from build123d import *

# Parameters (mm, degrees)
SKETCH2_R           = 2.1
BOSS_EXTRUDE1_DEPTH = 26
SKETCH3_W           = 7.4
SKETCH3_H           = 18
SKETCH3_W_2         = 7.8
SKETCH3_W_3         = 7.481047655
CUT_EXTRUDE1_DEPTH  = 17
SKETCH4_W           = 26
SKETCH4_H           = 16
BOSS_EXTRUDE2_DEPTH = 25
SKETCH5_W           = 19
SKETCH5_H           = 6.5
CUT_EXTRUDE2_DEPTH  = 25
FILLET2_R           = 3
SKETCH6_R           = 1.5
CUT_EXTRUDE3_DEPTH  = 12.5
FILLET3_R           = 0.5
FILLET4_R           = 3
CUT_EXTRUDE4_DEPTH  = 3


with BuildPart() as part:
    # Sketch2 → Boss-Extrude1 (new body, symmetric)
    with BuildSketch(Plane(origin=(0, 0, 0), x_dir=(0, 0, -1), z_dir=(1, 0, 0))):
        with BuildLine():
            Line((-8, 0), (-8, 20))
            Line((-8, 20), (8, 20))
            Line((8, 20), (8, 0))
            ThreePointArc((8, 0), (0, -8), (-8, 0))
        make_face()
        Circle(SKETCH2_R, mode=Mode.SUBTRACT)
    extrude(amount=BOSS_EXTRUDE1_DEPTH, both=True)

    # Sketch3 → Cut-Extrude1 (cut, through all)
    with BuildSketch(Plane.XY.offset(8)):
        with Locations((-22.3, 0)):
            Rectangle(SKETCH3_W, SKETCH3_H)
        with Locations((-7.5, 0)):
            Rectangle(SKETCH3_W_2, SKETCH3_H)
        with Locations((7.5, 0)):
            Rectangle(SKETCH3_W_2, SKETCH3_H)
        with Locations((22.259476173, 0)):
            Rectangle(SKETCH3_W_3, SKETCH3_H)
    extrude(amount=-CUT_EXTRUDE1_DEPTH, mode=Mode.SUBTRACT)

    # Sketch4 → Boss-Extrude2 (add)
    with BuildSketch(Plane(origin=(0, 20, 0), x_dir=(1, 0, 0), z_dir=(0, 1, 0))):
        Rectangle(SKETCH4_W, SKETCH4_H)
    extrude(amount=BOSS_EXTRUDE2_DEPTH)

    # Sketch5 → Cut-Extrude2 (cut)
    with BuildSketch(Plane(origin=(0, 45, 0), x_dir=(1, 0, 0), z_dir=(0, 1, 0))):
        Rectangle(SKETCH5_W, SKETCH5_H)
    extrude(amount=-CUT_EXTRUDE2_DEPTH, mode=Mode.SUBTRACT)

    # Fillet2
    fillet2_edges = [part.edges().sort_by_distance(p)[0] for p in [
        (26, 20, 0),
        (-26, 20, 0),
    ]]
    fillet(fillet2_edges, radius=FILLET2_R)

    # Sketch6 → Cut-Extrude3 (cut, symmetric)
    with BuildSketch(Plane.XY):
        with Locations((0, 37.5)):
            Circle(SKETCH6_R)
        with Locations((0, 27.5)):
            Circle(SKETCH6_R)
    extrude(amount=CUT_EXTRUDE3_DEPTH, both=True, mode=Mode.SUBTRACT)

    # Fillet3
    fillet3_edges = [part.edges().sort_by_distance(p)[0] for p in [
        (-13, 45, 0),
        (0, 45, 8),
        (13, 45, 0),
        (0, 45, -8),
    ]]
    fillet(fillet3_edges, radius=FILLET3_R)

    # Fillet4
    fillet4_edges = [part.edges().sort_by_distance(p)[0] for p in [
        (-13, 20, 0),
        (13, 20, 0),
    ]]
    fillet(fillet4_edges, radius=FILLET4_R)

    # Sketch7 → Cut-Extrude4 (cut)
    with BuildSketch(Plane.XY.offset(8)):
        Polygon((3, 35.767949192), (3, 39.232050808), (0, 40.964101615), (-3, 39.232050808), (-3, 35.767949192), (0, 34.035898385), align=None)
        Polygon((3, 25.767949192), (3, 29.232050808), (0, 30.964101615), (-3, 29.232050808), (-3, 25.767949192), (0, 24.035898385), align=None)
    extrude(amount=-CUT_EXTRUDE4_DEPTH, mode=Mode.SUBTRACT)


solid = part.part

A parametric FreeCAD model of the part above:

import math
import FreeCAD as App
import Part
import Sketcher
from FreeCAD import Vector
Q = App.Units.Quantity


def edges_at(feature, points):
    """Names of the edges that pass closest to the given points."""
    edges = feature.Shape.Edges
    near = lambda p: min(range(len(edges)), key=lambda i: edges[i].distToShape(Part.Vertex(*p))[0])
    return sorted({f"Edge{near(p) + 1}" for p in points})

doc = App.newDocument("Part")
params = doc.addObject("Spreadsheet::Sheet", "Params")
for row, (alias, value) in enumerate([
    ("sketch1_radius", "8 mm"),
    ("sketch1_diameter", "4.2 mm"),
    ("sketch1_width", "20 mm"),
    ("pad1_length", "52 mm"),
    ("sketch2_height", "18 mm"),
    ("sketch2_width", "7.4 mm"),
    ("sketch2_width2", "7.8 mm"),
    ("sketch3_width", "26 mm"),
    ("sketch3_height", "16 mm"),
    ("pad2_length", "25 mm"),
    ("sketch4_width", "19 mm"),
    ("sketch4_height", "6.5 mm"),
    ("pocket2_length", "25 mm"),
    ("fillet_radius", "3 mm"),
    ("sketch5_diameter", "3 mm"),
    ("pocket3_length", "25 mm"),
    ("fillet2_radius", "0.5 mm"),
    ("fillet3_radius", "3 mm"),
    ("pocket4_length", "3 mm"),
], start=1):
    params.set(f"A{row}", alias)
    params.set(f"B{row}", "=" + value)
    params.setAlias(f"B{row}", alias)

body = doc.addObject("PartDesign::Body", "Body")

# Sketch on YZ plane
sketch1 = body.newObject("Sketcher::SketchObject", "Sketch")
sketch1.AttachmentSupport = (doc.getObject("YZ_Plane"), [""])
sketch1.MapMode = "FlatFace"
sketch1.addGeometry([
    Part.LineSegment(Vector(20, 8, 0), Vector(0, 8, 0)),  # 0
    Part.ArcOfCircle(Part.Circle(Vector(0, 0, 0), Vector(0, 0, 1), 8), math.radians(90), math.radians(270)),  # 1
    Part.LineSegment(Vector(0, -8, 0), Vector(20, -8, 0)),  # 2
    Part.LineSegment(Vector(20, -8, 0), Vector(20, 8, 0)),  # 3
    Part.Circle(Vector(0, 0, 0), Vector(0, 0, 1), 2.1),  # 4
], False)
sketch1.addConstraint([
    Sketcher.Constraint("Tangent", 0, 2, 1, 1),
    Sketcher.Constraint("Tangent", 1, 2, 2, 1),
    Sketcher.Constraint("Coincident", 2, 2, 3, 1),
    Sketcher.Constraint("Coincident", 3, 2, 0, 1),
    Sketcher.Constraint("Horizontal", 0),
    Sketcher.Constraint("Horizontal", 2),
    Sketcher.Constraint("Vertical", 3),
    Sketcher.Constraint("Coincident", 1, 3, -1, 1),
    Sketcher.Constraint("Coincident", 4, 3, -1, 1),
    Sketcher.Constraint("Radius", 1, Q("8 mm")),
    Sketcher.Constraint("Diameter", 4, Q("4.2 mm")),
    Sketcher.Constraint("DistanceX", 0, 2, 0, 1, Q("20 mm")),
])
sketch1.setExpression("Constraints[9]", "Params.sketch1_radius")
sketch1.setExpression("Constraints[10]", "Params.sketch1_diameter")
sketch1.setExpression("Constraints[11]", "Params.sketch1_width")
pad1 = body.newObject("PartDesign::Pad", "Pad")
pad1.Profile = sketch1
pad1.setExpression("Length", "Params.pad1_length")
pad1.Midplane = True

# Sketch on XY plane
sketch2 = body.newObject("Sketcher::SketchObject", "Sketch001")
sketch2.AttachmentSupport = (doc.getObject("XY_Plane"), [""])
sketch2.MapMode = "FlatFace"
sketch2.AttachmentOffset = App.Placement(Vector(0, 0, 8), App.Rotation())
sketch2.addGeometry([
    Part.LineSegment(Vector(-26, 9, 0), Vector(-26, -9, 0)),  # 0
    Part.LineSegment(Vector(-26, -9, 0), Vector(-18.6, -9, 0)),  # 1
    Part.LineSegment(Vector(-18.6, -9, 0), Vector(-18.6, 9, 0)),  # 2
    Part.LineSegment(Vector(-18.6, 9, 0), Vector(-26, 9, 0)),  # 3
    Part.LineSegment(Vector(-11.4, 9, 0), Vector(-11.4, -9, 0)),  # 4
    Part.LineSegment(Vector(-11.4, -9, 0), Vector(-3.6, -9, 0)),  # 5
    Part.LineSegment(Vector(-3.6, -9, 0), Vector(-3.6, 9, 0)),  # 6
    Part.LineSegment(Vector(-3.6, 9, 0), Vector(-11.4, 9, 0)),  # 7
    Part.LineSegment(Vector(3.6, 9, 0), Vector(3.6, -9, 0)),  # 8
    Part.LineSegment(Vector(3.6, -9, 0), Vector(11.4, -9, 0)),  # 9
    Part.LineSegment(Vector(11.4, -9, 0), Vector(11.4, 9, 0)),  # 10
    Part.LineSegment(Vector(11.4, 9, 0), Vector(3.6, 9, 0)),  # 11
    Part.LineSegment(Vector(18.518952, 9, 0), Vector(18.518952, -9, 0)),  # 12
    Part.LineSegment(Vector(18.518952, -9, 0), Vector(26, -9, 0)),  # 13
    Part.LineSegment(Vector(26, -9, 0), Vector(26, 9, 0)),  # 14
    Part.LineSegment(Vector(26, 9, 0), Vector(18.518952, 9, 0)),  # 15
], False)
sketch2.addConstraint([
    Sketcher.Constraint("Coincident", 0, 2, 1, 1),
    Sketcher.Constraint("Coincident", 1, 2, 2, 1),
    Sketcher.Constraint("Coincident", 2, 2, 3, 1),
    Sketcher.Constraint("Coincident", 3, 2, 0, 1),
    Sketcher.Constraint("Coincident", 4, 2, 5, 1),
    Sketcher.Constraint("Coincident", 5, 2, 6, 1),
    Sketcher.Constraint("Coincident", 6, 2, 7, 1),
    Sketcher.Constraint("Coincident", 7, 2, 4, 1),
    Sketcher.Constraint("Coincident", 8, 2, 9, 1),
    Sketcher.Constraint("Coincident", 9, 2, 10, 1),
    Sketcher.Constraint("Coincident", 10, 2, 11, 1),
    Sketcher.Constraint("Coincident", 11, 2, 8, 1),
    Sketcher.Constraint("Coincident", 12, 2, 13, 1),
    Sketcher.Constraint("Coincident", 13, 2, 14, 1),
    Sketcher.Constraint("Coincident", 14, 2, 15, 1),
    Sketcher.Constraint("Coincident", 15, 2, 12, 1),
    Sketcher.Constraint("Vertical", 0),
    Sketcher.Constraint("Horizontal", 1),
    Sketcher.Constraint("Vertical", 2),
    Sketcher.Constraint("Horizontal", 3),
    Sketcher.Constraint("Vertical", 4),
    Sketcher.Constraint("Horizontal", 5),
    Sketcher.Constraint("Vertical", 6),
    Sketcher.Constraint("Horizontal", 7),
    Sketcher.Constraint("Vertical", 8),
    Sketcher.Constraint("Horizontal", 9),
    Sketcher.Constraint("Vertical", 10),
    Sketcher.Constraint("Horizontal", 11),
    Sketcher.Constraint("Vertical", 12),
    Sketcher.Constraint("Horizontal", 13),
    Sketcher.Constraint("Vertical", 14),
    Sketcher.Constraint("Horizontal", 15),
    Sketcher.Constraint("Symmetric", 6, 2, 8, 2, -1, 1),
    Sketcher.Constraint("Symmetric", 4, 2, 10, 2, -1, 1),
    Sketcher.Constraint("Symmetric", 3, 2, 13, 2, -1, 1),
    Sketcher.Constraint("Horizontal", 1, 2, 4, 2),
    Sketcher.Constraint("Horizontal", 3, 2, 6, 2),
    Sketcher.Constraint("Horizontal", 5, 2, 8, 2),
    Sketcher.Constraint("Horizontal", 11, 2, 14, 2),
    Sketcher.Constraint("DistanceY", 0, 2, 0, 1, Q("18 mm")),
    Sketcher.Constraint("DistanceX", 1, 1, 1, 2, Q("7.4 mm")),
    Sketcher.Constraint("DistanceX", 5, 1, 5, 2, Q("7.8 mm")),
    Sketcher.Constraint("DistanceX", 0, 2, -1, 1, Q("26 mm")),
    Sketcher.Constraint("DistanceX", 1, 2, 5, 2, Q("15 mm")),
    Sketcher.Constraint("DistanceX", 13, 1, 13, 2, Q("7.481048 mm")),
])
sketch2.setExpression("Constraints[39]", "Params.sketch2_height")
sketch2.setExpression("Constraints[40]", "Params.sketch2_width")
sketch2.setExpression("Constraints[41]", "Params.sketch2_width2")
pocket1 = body.newObject("PartDesign::Pocket", "Pocket")
pocket1.Profile = sketch2
pocket1.Type = "ThroughAll"

# Sketch on XZ plane
sketch3 = body.newObject("Sketcher::SketchObject", "Sketch002")
sketch3.AttachmentSupport = (doc.getObject("XZ_Plane"), [""])
sketch3.MapMode = "FlatFace"
sketch3.AttachmentOffset = App.Placement(Vector(0, 0, -20), App.Rotation())
sketch3.addGeometry([
    Part.LineSegment(Vector(-13, -8, 0), Vector(-13, 8, 0)),
    Part.LineSegment(Vector(-13, 8, 0), Vector(13, 8, 0)),
    Part.LineSegment(Vector(13, 8, 0), Vector(13, -8, 0)),
    Part.LineSegment(Vector(13, -8, 0), Vector(-13, -8, 0)),
], False)
sketch3.addConstraint([
    Sketcher.Constraint("Coincident", 0, 2, 1, 1),
    Sketcher.Constraint("Coincident", 1, 2, 2, 1),
    Sketcher.Constraint("Coincident", 2, 2, 3, 1),
    Sketcher.Constraint("Coincident", 3, 2, 0, 1),
    Sketcher.Constraint("Vertical", 0),
    Sketcher.Constraint("Horizontal", 1),
    Sketcher.Constraint("Vertical", 2),
    Sketcher.Constraint("Horizontal", 3),
    Sketcher.Constraint("Symmetric", 0, 2, 2, 2, -1, 1),
    Sketcher.Constraint("DistanceX", 1, 1, 1, 2, Q("26 mm")),
    Sketcher.Constraint("DistanceY", 0, 1, 0, 2, Q("16 mm")),
])
sketch3.setExpression("Constraints[9]", "Params.sketch3_width")
sketch3.setExpression("Constraints[10]", "Params.sketch3_height")
pad2 = body.newObject("PartDesign::Pad", "Pad001")
pad2.Profile = sketch3
pad2.setExpression("Length", "Params.pad2_length")
pad2.Reversed = True

# Sketch on XZ plane
sketch4 = body.newObject("Sketcher::SketchObject", "Sketch003")
sketch4.AttachmentSupport = (doc.getObject("XZ_Plane"), [""])
sketch4.MapMode = "FlatFace"
sketch4.AttachmentOffset = App.Placement(Vector(0, 0, -45), App.Rotation())
sketch4.addGeometry([
    Part.LineSegment(Vector(-9.5, -3.25, 0), Vector(-9.5, 3.25, 0)),
    Part.LineSegment(Vector(-9.5, 3.25, 0), Vector(9.5, 3.25, 0)),
    Part.LineSegment(Vector(9.5, 3.25, 0), Vector(9.5, -3.25, 0)),
    Part.LineSegment(Vector(9.5, -3.25, 0), Vector(-9.5, -3.25, 0)),
], False)
sketch4.addConstraint([
    Sketcher.Constraint("Coincident", 0, 2, 1, 1),
    Sketcher.Constraint("Coincident", 1, 2, 2, 1),
    Sketcher.Constraint("Coincident", 2, 2, 3, 1),
    Sketcher.Constraint("Coincident", 3, 2, 0, 1),
    Sketcher.Constraint("Vertical", 0),
    Sketcher.Constraint("Horizontal", 1),
    Sketcher.Constraint("Vertical", 2),
    Sketcher.Constraint("Horizontal", 3),
    Sketcher.Constraint("Symmetric", 0, 2, 2, 2, -1, 1),
    Sketcher.Constraint("DistanceX", 1, 1, 1, 2, Q("19 mm")),
    Sketcher.Constraint("DistanceY", 0, 1, 0, 2, Q("6.5 mm")),
])
sketch4.setExpression("Constraints[9]", "Params.sketch4_width")
sketch4.setExpression("Constraints[10]", "Params.sketch4_height")
pocket2 = body.newObject("PartDesign::Pocket", "Pocket001")
pocket2.Profile = sketch4
pocket2.setExpression("Length", "Params.pocket2_length")
pocket2.Reversed = True
doc.recompute()

fillet = body.newObject("PartDesign::Fillet", "Fillet")
fillet.Base = (pocket2, edges_at(pocket2, [(26, 20, 0), (-26, 20, 0)]))
fillet.setExpression("Radius", "Params.fillet_radius")

# Sketch on XY plane
sketch5 = body.newObject("Sketcher::SketchObject", "Sketch004")
sketch5.AttachmentSupport = (doc.getObject("XY_Plane"), [""])
sketch5.MapMode = "FlatFace"
sketch5.addGeometry([
    Part.Circle(Vector(0, 37.5, 0), Vector(0, 0, 1), 1.5),
    Part.Circle(Vector(0, 27.5, 0), Vector(0, 0, 1), 1.5),
], False)
sketch5.addConstraint([
    Sketcher.Constraint("Equal", 0, 1),
    Sketcher.Constraint("PointOnObject", 0, 3, -2),
    Sketcher.Constraint("PointOnObject", 1, 3, -2),
    Sketcher.Constraint("Diameter", 0, Q("3 mm")),
    Sketcher.Constraint("DistanceY", 1, 3, 0, 3, Q("10 mm")),
    Sketcher.Constraint("DistanceY", -1, 1, 0, 3, Q("37.5 mm")),
])
sketch5.setExpression("Constraints[3]", "Params.sketch5_diameter")
pocket3 = body.newObject("PartDesign::Pocket", "Pocket002")
pocket3.Profile = sketch5
pocket3.setExpression("Length", "Params.pocket3_length")
pocket3.Midplane = True
doc.recompute()

fillet2 = body.newObject("PartDesign::Fillet", "Fillet001")
fillet2.Base = (pocket3, edges_at(pocket3, [
    (-13, 45, 0),
    (0, 45, 8),
    (13, 45, 0),
    (0, 45, -8),
]))
fillet2.setExpression("Radius", "Params.fillet2_radius")
doc.recompute()

fillet3 = body.newObject("PartDesign::Fillet", "Fillet002")
fillet3.Base = (fillet2, edges_at(fillet2, [(-13, 20, 0), (13, 20, 0)]))
fillet3.setExpression("Radius", "Params.fillet3_radius")

# Sketch on XY plane
sketch6 = body.newObject("Sketcher::SketchObject", "Sketch005")
sketch6.AttachmentSupport = (doc.getObject("XY_Plane"), [""])
sketch6.MapMode = "FlatFace"
sketch6.AttachmentOffset = App.Placement(Vector(0, 0, 8), App.Rotation())
sketch6.addGeometry([
    Part.LineSegment(Vector(3, 35.767949, 0), Vector(3, 39.232051, 0)),  # 0
    Part.LineSegment(Vector(3, 39.232051, 0), Vector(0, 40.964102, 0)),  # 1
    Part.LineSegment(Vector(0, 40.964102, 0), Vector(-3, 39.232051, 0)),  # 2
    Part.LineSegment(Vector(-3, 39.232051, 0), Vector(-3, 35.767949, 0)),  # 3
    Part.LineSegment(Vector(-3, 35.767949, 0), Vector(0, 34.035898, 0)),  # 4
    Part.LineSegment(Vector(0, 34.035898, 0), Vector(3, 35.767949, 0)),  # 5
    Part.LineSegment(Vector(3, 25.767949, 0), Vector(3, 29.232051, 0)),  # 6
    Part.LineSegment(Vector(3, 29.232051, 0), Vector(0, 30.964102, 0)),  # 7
    Part.LineSegment(Vector(0, 30.964102, 0), Vector(-3, 29.232051, 0)),  # 8
    Part.LineSegment(Vector(-3, 29.232051, 0), Vector(-3, 25.767949, 0)),  # 9
    Part.LineSegment(Vector(-3, 25.767949, 0), Vector(0, 24.035898, 0)),  # 10
    Part.LineSegment(Vector(0, 24.035898, 0), Vector(3, 25.767949, 0)),  # 11
], False)
sketch6.addConstraint([
    Sketcher.Constraint("Coincident", 0, 2, 1, 1),
    Sketcher.Constraint("Coincident", 1, 2, 2, 1),
    Sketcher.Constraint("Coincident", 2, 2, 3, 1),
    Sketcher.Constraint("Coincident", 3, 2, 4, 1),
    Sketcher.Constraint("Coincident", 4, 2, 5, 1),
    Sketcher.Constraint("Coincident", 5, 2, 0, 1),
    Sketcher.Constraint("Coincident", 6, 2, 7, 1),
    Sketcher.Constraint("Coincident", 7, 2, 8, 1),
    Sketcher.Constraint("Coincident", 8, 2, 9, 1),
    Sketcher.Constraint("Coincident", 9, 2, 10, 1),
    Sketcher.Constraint("Coincident", 10, 2, 11, 1),
    Sketcher.Constraint("Coincident", 11, 2, 6, 1),
    Sketcher.Constraint("Vertical", 0),
    Sketcher.Constraint("Vertical", 3),
    Sketcher.Constraint("Vertical", 6),
    Sketcher.Constraint("Vertical", 9),
    Sketcher.Constraint("Symmetric", 0, 2, 2, 2, -2),
    Sketcher.Constraint("Symmetric", 6, 2, 8, 2, -2),
    Sketcher.Constraint("PointOnObject", 1, 2, -2),
    Sketcher.Constraint("PointOnObject", 4, 2, -2),
    Sketcher.Constraint("PointOnObject", 7, 2, -2),
    Sketcher.Constraint("PointOnObject", 10, 2, -2),
    Sketcher.Constraint("Parallel", 1, 4),
    Sketcher.Constraint("Parallel", 2, 5),
    Sketcher.Constraint("Parallel", 4, 7),
    Sketcher.Constraint("Parallel", 7, 10),
    Sketcher.Constraint("Parallel", 8, 11),
    Sketcher.Constraint("Vertical", 5, 2, 6, 2),
    Sketcher.Constraint("Equal", 3, 6),
    Sketcher.Constraint("Angle", 1, Q("150 deg")),
    Sketcher.Constraint("DistanceX", -1, 1, 0, 2, Q("3 mm")),
    Sketcher.Constraint("DistanceY", 6, 2, 0, 2, Q("10 mm")),
    Sketcher.Constraint("DistanceY", 0, 1, 0, 2, Q("3.464102 mm")),
    Sketcher.Constraint("DistanceY", -1, 1, 1, 2, Q("40.964102 mm")),
])
pocket4 = body.newObject("PartDesign::Pocket", "Pocket003")
pocket4.Profile = sketch6
pocket4.setExpression("Length", "Params.pocket4_length")

doc.recompute()
